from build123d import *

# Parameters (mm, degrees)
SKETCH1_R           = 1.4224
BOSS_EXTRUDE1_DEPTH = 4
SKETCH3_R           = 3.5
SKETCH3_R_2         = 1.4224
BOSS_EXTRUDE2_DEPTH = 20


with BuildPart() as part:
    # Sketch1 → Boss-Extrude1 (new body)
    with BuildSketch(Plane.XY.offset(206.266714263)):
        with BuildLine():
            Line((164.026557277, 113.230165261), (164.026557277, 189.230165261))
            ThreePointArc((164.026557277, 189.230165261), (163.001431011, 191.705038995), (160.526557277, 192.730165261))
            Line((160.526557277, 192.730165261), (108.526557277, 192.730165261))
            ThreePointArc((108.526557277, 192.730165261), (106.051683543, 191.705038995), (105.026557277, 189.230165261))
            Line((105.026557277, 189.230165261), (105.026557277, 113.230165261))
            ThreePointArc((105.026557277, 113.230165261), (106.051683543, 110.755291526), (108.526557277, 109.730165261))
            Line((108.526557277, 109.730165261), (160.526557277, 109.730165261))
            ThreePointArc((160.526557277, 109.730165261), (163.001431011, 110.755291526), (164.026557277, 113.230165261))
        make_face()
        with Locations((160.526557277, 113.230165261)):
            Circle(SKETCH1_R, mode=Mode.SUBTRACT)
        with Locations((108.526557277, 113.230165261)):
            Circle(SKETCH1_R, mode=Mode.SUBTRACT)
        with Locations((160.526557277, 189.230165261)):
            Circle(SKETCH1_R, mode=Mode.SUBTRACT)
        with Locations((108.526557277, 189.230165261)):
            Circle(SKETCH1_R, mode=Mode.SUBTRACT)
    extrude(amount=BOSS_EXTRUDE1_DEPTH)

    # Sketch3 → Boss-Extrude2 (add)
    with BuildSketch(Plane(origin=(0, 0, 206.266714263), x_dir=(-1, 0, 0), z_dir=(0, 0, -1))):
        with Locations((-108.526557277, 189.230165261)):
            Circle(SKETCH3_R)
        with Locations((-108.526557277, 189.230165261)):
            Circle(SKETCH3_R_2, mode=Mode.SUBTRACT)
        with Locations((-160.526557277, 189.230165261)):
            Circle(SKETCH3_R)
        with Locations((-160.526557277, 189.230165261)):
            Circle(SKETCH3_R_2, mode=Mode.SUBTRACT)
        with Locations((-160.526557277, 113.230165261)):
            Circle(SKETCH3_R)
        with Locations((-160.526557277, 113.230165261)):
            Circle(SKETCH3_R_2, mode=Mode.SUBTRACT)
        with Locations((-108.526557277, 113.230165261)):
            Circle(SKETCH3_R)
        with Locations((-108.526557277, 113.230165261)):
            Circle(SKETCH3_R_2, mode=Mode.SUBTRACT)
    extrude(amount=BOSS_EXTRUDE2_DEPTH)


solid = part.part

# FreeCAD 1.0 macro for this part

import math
import FreeCAD as App
import Part
import Sketcher

V = App.Vector
Q = App.Units.Quantity

doc = App.newDocument("Part")
body = doc.addObject("PartDesign::Body", "Body")

# Sketch on XY plane
sketch1 = body.newObject("Sketcher::SketchObject", "Sketch")
sketch1.AttachmentSupport = (doc.getObject("XY_Plane"), [""])
sketch1.MapMode = "FlatFace"
sketch1.AttachmentOffset = App.Placement(V(0, 0, 206.266714), App.Rotation())
sketch1.addGeometry([
    Part.LineSegment(V(164, 113.2, 0), V(164, 189.2, 0)),  # 0
    Part.ArcOfCircle(Part.Circle(V(160.5, 189.2, 0), V(0, 0, 1), 3.5), math.radians(0), math.radians(90)),  # 1
    Part.LineSegment(V(160.5, 192.7, 0), V(108.5, 192.7, 0)),  # 2
    Part.ArcOfCircle(Part.Circle(V(108.5, 189.2, 0), V(0, 0, 1), 3.5), math.radians(90), math.radians(180)),  # 3
    Part.LineSegment(V(105, 189.2, 0), V(105, 113.2, 0)),  # 4
    Part.ArcOfCircle(Part.Circle(V(108.5, 113.2, 0), V(0, 0, 1), 3.5), math.radians(180), math.radians(270)),  # 5
    Part.LineSegment(V(108.5, 109.7, 0), V(160.5, 109.7, 0)),  # 6
    Part.ArcOfCircle(Part.Circle(V(160.5, 113.2, 0), V(0, 0, 1), 3.5), math.radians(-90), math.radians(0)),  # 7
    Part.Circle(V(108.5, 113.2, 0), V(0, 0, 1), 1.4),  # 8
    Part.Circle(V(160.5, 113.2, 0), V(0, 0, 1), 1.4),  # 9
    Part.Circle(V(108.5, 189.2, 0), V(0, 0, 1), 1.4),  # 10
    Part.Circle(V(160.5, 189.2, 0), V(0, 0, 1), 1.4),  # 11
], False)
sketch1.addConstraint([
    Sketcher.Constraint("Tangent", 0, 2, 1, 1),
    Sketcher.Constraint("Tangent", 1, 2, 2, 1),
    Sketcher.Constraint("Tangent", 2, 2, 3, 1),
    Sketcher.Constraint("Tangent", 3, 2, 4, 1),
    Sketcher.Constraint("Tangent", 4, 2, 5, 1),
    Sketcher.Constraint("Tangent", 5, 2, 6, 1),
    Sketcher.Constraint("Tangent", 6, 2, 7, 1),
    Sketcher.Constraint("Tangent", 7, 2, 0, 1),
    Sketcher.Constraint("Vertical", 0),
    Sketcher.Constraint("Horizontal", 2),
    Sketcher.Constraint("Vertical", 4),
    Sketcher.Constraint("Horizontal", 6),
    Sketcher.Constraint("Coincident", 8, 3, 5, 3),
    Sketcher.Constraint("Coincident", 9, 3, 7, 3),
    Sketcher.Constraint("Coincident", 10, 3, 3, 3),
    Sketcher.Constraint("Coincident", 11, 3, 1, 3),
    Sketcher.Constraint("Equal", 1, 3),
    Sketcher.Constraint("Equal", 3, 5),
    Sketcher.Constraint("Equal", 5, 7),
    Sketcher.Constraint("Equal", 8, 9),
    Sketcher.Constraint("Equal", 9, 10),
    Sketcher.Constraint("Equal", 10, 11),
    Sketcher.Constraint("Radius", 1, Q("3.5 mm")),
    Sketcher.Constraint("DistanceX", 2, 2, 2, 1, Q("52 mm")),
    Sketcher.Constraint("DistanceY", 0, 1, 0, 2, Q("76 mm")),
    Sketcher.Constraint("Diameter", 8, Q("2.8448 mm")),
    Sketcher.Constraint("DistanceX", -1, 1, 1, 3, Q("160.526557 mm")),
    Sketcher.Constraint("DistanceY", -1, 1, 1, 3, Q("189.230165 mm")),
])
pad1 = body.newObject("PartDesign::Pad", "Pad")
pad1.Profile = sketch1
pad1.Length = 4

# Sketch on XY plane
sketch2 = body.newObject("Sketcher::SketchObject", "Sketch001")
sketch2.AttachmentSupport = (doc.getObject("XY_Plane"), [""])
sketch2.MapMode = "FlatFace"
sketch2.AttachmentOffset = App.Placement(V(0, 0, 206.266714), App.Rotation())
sketch2.addGeometry([
    Part.Circle(V(108.5, 189.2, 0), V(0, 0, 1), 3.5),  # 0
    Part.Circle(V(108.5, 189.2, 0), V(0, 0, 1), 1.4),  # 1
    Part.Circle(V(160.5, 189.2, 0), V(0, 0, 1), 3.5),  # 2
    Part.Circle(V(160.5, 189.2, 0), V(0, 0, 1), 1.4),  # 3
    Part.Circle(V(160.5, 113.2, 0), V(0, 0, 1), 3.5),  # 4
    Part.Circle(V(160.5, 113.2, 0), V(0, 0, 1), 1.4),  # 5
    Part.Circle(V(108.5, 113.2, 0), V(0, 0, 1), 3.5),  # 6
    Part.Circle(V(108.5, 113.2, 0), V(0, 0, 1), 1.4),  # 7
], False)
sketch2.addConstraint([
    Sketcher.Constraint("Coincident", 1, 3, 0, 3),
    Sketcher.Constraint("Coincident", 3, 3, 2, 3),
    Sketcher.Constraint("Coincident", 5, 3, 4, 3),
    Sketcher.Constraint("Coincident", 7, 3, 6, 3),
    Sketcher.Constraint("Equal", 0, 2),
    Sketcher.Constraint("Equal", 1, 3),
    Sketcher.Constraint("Equal", 2, 4),
    Sketcher.Constraint("Equal", 3, 5),
    Sketcher.Constraint("Equal", 4, 6),
    Sketcher.Constraint("Equal", 5, 7),
    Sketcher.Constraint("Horizontal", 1, 3, 2, 3),
    Sketcher.Constraint("Horizontal", 5, 3, 6, 3),
    Sketcher.Constraint("Vertical", 3, 3, 4, 3),
    Sketcher.Constraint("Vertical", 1, 3, 6, 3),
    Sketcher.Constraint("Diameter", 0, Q("7 mm")),
    Sketcher.Constraint("DistanceX", 0, 3, 2, 3, Q("52 mm")),
    Sketcher.Constraint("DistanceY", 4, 3, 2, 3, Q("76 mm")),
    Sketcher.Constraint("Diameter", 1, Q("2.8448 mm")),
    Sketcher.Constraint("DistanceX", -1, 1, 0, 3, Q("108.526557 mm")),
    Sketcher.Constraint("DistanceY", -1, 1, 0, 3, Q("189.230165 mm")),
])
pad2 = body.newObject("PartDesign::Pad", "Pad001")
pad2.Profile = sketch2
pad2.Length = 20
pad2.Reversed = True

doc.recompute()
